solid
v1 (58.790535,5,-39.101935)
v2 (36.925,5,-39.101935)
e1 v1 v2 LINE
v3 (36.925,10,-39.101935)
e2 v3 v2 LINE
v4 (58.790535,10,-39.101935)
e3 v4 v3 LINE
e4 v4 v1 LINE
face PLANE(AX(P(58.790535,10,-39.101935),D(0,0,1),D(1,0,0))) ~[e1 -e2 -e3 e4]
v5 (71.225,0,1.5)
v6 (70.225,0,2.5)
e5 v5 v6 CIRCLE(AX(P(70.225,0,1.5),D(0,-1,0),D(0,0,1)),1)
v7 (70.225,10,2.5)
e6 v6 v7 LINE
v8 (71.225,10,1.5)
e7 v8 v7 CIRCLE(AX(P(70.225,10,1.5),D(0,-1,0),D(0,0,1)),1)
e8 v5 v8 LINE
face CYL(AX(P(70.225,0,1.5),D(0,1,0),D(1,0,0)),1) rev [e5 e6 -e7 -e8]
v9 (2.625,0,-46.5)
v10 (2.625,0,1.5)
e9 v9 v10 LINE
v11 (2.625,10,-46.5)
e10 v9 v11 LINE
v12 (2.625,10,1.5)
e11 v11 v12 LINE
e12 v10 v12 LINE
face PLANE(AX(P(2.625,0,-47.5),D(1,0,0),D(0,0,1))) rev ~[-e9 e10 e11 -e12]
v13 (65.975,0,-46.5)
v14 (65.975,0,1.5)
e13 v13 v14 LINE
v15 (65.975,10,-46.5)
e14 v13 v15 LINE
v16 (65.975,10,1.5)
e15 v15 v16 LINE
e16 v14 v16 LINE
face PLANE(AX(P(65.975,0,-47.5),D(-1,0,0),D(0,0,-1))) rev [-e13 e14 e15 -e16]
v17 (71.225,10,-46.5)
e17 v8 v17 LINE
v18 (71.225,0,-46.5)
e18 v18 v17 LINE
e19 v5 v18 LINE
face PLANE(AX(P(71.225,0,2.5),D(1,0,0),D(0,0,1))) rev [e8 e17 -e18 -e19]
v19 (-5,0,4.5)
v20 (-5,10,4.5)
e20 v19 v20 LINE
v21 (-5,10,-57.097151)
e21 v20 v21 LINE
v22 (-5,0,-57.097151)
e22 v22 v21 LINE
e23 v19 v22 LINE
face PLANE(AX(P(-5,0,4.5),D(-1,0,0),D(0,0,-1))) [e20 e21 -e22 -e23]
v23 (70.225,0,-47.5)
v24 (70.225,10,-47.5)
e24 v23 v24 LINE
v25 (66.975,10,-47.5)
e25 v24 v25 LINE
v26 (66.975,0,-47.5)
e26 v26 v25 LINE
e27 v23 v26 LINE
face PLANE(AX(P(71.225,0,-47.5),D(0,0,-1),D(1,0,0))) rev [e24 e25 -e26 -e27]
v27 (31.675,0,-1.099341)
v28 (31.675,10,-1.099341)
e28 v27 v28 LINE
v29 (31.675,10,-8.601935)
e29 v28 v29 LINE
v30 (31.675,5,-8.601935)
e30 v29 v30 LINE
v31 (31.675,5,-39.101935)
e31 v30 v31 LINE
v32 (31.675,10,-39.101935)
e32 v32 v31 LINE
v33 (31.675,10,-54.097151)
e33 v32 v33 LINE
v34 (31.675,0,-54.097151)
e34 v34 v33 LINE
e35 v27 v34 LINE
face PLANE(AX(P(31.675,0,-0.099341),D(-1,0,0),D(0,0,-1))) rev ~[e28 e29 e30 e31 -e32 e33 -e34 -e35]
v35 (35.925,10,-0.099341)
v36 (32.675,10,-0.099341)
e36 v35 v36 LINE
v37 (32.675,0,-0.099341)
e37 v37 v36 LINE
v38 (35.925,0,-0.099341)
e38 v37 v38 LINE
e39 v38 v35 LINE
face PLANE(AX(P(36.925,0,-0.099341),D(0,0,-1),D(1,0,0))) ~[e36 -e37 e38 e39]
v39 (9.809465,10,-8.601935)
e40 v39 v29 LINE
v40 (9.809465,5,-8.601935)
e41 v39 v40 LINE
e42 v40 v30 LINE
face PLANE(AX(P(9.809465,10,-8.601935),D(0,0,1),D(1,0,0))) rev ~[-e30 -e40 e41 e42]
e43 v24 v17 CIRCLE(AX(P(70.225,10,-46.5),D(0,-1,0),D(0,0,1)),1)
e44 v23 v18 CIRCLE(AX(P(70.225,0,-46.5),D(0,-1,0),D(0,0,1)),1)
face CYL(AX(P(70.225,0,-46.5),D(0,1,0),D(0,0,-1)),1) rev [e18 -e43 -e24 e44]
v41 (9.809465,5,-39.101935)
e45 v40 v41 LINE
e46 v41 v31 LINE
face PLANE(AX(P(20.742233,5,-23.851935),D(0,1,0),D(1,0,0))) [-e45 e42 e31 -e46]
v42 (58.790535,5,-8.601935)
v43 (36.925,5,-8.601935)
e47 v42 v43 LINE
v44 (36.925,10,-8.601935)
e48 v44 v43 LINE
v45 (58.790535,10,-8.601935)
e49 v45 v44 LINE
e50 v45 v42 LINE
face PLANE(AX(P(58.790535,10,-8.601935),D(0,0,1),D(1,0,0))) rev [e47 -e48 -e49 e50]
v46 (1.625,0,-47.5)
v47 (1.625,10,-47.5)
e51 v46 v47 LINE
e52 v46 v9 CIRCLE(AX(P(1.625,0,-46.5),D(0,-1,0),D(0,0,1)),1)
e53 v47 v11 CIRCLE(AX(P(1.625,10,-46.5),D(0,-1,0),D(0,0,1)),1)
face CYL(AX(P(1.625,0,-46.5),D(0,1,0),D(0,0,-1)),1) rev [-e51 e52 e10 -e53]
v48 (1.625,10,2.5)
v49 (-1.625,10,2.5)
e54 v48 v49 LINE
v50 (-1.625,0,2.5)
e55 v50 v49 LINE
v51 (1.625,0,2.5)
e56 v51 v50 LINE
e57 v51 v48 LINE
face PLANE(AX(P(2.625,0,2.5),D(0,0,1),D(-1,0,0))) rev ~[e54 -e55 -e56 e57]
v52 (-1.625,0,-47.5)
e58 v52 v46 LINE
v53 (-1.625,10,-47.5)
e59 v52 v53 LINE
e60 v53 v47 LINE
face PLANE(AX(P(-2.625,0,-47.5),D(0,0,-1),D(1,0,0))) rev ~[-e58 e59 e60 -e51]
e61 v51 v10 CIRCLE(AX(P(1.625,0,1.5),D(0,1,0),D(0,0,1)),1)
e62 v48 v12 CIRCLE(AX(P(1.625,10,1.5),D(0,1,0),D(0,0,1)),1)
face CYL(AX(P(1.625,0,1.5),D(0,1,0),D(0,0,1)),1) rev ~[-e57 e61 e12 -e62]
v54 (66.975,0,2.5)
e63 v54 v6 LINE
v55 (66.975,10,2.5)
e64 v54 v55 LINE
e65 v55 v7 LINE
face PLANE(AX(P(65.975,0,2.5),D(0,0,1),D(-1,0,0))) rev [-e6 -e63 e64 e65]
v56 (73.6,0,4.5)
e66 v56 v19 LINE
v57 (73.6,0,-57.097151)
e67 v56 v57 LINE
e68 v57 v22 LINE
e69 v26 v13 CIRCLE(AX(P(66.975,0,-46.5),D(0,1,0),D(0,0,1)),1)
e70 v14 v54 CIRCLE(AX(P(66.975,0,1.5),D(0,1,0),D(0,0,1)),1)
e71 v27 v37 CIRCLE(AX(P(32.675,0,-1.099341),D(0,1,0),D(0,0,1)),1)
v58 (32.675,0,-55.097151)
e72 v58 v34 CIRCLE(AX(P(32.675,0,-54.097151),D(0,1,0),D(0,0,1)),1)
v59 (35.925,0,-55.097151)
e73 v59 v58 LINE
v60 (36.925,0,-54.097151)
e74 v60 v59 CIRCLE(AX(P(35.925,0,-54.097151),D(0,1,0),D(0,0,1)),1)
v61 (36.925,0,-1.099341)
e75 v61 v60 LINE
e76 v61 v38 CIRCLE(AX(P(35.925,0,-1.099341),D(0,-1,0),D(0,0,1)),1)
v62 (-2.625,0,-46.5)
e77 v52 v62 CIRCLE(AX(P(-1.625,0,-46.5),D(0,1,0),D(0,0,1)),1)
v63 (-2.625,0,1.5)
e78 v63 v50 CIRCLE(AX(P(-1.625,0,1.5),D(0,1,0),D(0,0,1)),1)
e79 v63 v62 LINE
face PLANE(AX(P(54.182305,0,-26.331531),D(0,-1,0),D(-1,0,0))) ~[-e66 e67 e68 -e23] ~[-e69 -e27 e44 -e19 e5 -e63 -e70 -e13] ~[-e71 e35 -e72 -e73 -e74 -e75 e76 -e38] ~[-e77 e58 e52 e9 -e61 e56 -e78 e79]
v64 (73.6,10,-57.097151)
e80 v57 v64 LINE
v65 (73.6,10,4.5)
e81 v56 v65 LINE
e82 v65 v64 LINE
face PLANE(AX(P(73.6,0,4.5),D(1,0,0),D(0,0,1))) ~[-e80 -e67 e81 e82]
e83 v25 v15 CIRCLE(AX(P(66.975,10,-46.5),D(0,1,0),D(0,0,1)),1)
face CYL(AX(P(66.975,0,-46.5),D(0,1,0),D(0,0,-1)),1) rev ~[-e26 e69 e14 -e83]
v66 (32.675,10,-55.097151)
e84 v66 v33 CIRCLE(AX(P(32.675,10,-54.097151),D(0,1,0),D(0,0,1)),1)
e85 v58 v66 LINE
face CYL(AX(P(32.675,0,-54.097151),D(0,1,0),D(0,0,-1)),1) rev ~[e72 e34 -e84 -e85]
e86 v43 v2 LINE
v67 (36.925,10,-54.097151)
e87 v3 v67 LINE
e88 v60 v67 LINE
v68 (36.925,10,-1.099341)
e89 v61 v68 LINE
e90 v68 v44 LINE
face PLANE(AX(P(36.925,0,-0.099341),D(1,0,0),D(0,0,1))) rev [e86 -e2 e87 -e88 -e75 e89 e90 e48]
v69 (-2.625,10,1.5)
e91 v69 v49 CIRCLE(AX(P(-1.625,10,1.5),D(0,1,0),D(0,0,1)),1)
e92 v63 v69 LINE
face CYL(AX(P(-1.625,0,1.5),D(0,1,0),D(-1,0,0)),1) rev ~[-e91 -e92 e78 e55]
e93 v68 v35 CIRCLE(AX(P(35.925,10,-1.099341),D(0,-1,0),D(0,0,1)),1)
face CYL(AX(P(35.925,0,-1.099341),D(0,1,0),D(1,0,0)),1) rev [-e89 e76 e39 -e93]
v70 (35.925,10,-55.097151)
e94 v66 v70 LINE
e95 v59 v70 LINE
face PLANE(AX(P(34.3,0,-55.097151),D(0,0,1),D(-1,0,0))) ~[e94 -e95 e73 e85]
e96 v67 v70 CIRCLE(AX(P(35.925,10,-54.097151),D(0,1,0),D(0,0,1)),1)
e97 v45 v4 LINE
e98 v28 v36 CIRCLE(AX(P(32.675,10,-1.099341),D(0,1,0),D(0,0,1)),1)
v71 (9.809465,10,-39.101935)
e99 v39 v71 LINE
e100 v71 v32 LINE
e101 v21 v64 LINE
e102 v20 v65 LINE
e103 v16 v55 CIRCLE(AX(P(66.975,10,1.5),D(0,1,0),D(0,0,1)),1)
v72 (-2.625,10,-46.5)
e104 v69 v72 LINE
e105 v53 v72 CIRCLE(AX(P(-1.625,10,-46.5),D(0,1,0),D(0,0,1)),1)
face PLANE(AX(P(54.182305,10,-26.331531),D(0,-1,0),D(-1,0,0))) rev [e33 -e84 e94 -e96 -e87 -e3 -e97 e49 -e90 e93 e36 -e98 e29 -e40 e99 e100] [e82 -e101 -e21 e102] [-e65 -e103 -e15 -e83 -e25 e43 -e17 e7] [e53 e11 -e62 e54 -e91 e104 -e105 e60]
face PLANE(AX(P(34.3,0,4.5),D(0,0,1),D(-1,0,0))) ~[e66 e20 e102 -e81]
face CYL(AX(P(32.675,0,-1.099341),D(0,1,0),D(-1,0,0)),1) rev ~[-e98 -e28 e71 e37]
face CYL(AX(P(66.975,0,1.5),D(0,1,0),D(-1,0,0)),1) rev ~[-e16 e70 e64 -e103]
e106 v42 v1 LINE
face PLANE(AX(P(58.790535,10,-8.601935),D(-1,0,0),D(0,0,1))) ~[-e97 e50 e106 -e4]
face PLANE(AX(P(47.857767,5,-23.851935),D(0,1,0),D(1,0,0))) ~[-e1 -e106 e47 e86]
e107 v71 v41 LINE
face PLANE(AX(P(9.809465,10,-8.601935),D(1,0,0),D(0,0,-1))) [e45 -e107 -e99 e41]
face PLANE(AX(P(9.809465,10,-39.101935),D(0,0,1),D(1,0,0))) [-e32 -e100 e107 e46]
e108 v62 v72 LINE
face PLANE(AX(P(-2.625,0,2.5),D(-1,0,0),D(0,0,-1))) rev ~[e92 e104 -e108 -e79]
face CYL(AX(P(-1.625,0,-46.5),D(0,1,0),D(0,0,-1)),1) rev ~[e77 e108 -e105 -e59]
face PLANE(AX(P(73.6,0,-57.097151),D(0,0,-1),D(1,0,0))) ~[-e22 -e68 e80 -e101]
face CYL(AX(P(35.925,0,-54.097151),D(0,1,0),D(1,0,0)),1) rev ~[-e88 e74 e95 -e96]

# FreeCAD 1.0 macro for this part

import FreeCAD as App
import Part
import Sketcher
from FreeCAD import Vector
Q = App.Units.Quantity


def edges_at(feature, points):
    """Names of the edges that pass closest to the given points."""
    edges = feature.Shape.Edges
    near = lambda p: min(range(len(edges)), key=lambda i: edges[i].distToShape(Part.Vertex(*p))[0])
    return sorted({f"Edge{near(p) + 1}" for p in points})


def add_polygon(sketch, points):
    """Adds a closed chain of lines whose ends are joined by coincident constraints."""
    first, n = sketch.GeometryCount, len(points)
    for a, b in zip(points, points[1:] + points[:1]):
        sketch.addGeometry(Part.LineSegment(App.Vector(*a, 0), App.Vector(*b, 0)), False)
    for i in range(n):
        sketch.addConstraint(Sketcher.Constraint("Coincident", first + i, 2, first + (i + 1) % n, 1))

doc = App.newDocument("Part")
body = doc.addObject("PartDesign::Body", "Body")

# Sketch on XZ plane
sketch1 = body.newObject("Sketcher::SketchObject", "Sketch")
sketch1.AttachmentSupport = (doc.getObject("XZ_Plane"), [""])
sketch1.MapMode = "FlatFace"
add_polygon(sketch1, [(34.3, -57.1), (-5, -57.1), (-5, 4.5), (34.3, 4.5), (34.3, -0.1), (31.7, -0.1), (31.7, -55.1), (34.3, -55.1)])  # lines 0-7
add_polygon(sketch1, [(-2.6, -47.5), (2.6, -47.5), (2.6, 2.5), (-2.6, 2.5)])  # lines 8-11
sketch1.addConstraint(Sketcher.Constraint("Horizontal", 0))
sketch1.addConstraint(Sketcher.Constraint("Vertical", 1))
sketch1.addConstraint(Sketcher.Constraint("Horizontal", 2))
sketch1.addConstraint(Sketcher.Constraint("Vertical", 3))
sketch1.addConstraint(Sketcher.Constraint("Horizontal", 4))
sketch1.addConstraint(Sketcher.Constraint("Vertical", 5))
sketch1.addConstraint(Sketcher.Constraint("Horizontal", 6))
sketch1.addConstraint(Sketcher.Constraint("Vertical", 7))
sketch1.addConstraint(Sketcher.Constraint("Horizontal", 8))
sketch1.addConstraint(Sketcher.Constraint("Vertical", 9))
sketch1.addConstraint(Sketcher.Constraint("Horizontal", 10))
sketch1.addConstraint(Sketcher.Constraint("Vertical", 11))
sketch1.addConstraint(Sketcher.Constraint("Vertical", 3, 2, 6, 2))
sketch1.addConstraint(Sketcher.Constraint("DistanceY", 7, 2, 7, 1, Q("2 mm")))
sketch1.addConstraint(Sketcher.Constraint("DistanceY", 9, 1, 9, 2, Q("50 mm")))
sketch1.addConstraint(Sketcher.Constraint("DistanceX", 0, 2, 0, 1, Q("39.3 mm")))
sketch1.addConstraint(Sketcher.Constraint("DistanceX", 0, 2, -1, 1, Q("5 mm")))
sketch1.addConstraint(Sketcher.Constraint("DistanceY", 8, 2, 1, 2, Q("52 mm")))
sketch1.addConstraint(Sketcher.Constraint("DistanceX", 8, 1, 8, 2, Q("5.25 mm")))
sketch1.addConstraint(Sketcher.Constraint("DistanceY", -1, 1, 1, 2, Q("4.5 mm")))
sketch1.addConstraint(Sketcher.Constraint("DistanceX", 10, 2, 4, 2, Q("34.3 mm")))
sketch1.addConstraint(Sketcher.Constraint("DistanceX", 4, 2, 4, 1, Q("2.625 mm")))
sketch1.addConstraint(Sketcher.Constraint("DistanceY", 1, 1, 1, 2, Q("61.597151 mm")))
sketch1.addConstraint(Sketcher.Constraint("DistanceY", 3, 2, 3, 1, Q("4.599341 mm")))
pad1 = body.newObject("PartDesign::Pad", "Pad")
pad1.Profile = sketch1
pad1.Length = 10
pad1.Reversed = True
doc.recompute()

fillet = body.newObject("PartDesign::Fillet", "Fillet")
fillet.Base = (pad1, edges_at(pad1, [
    (31.675, 5, -55.097),
    (31.675, 5, -0.099),
    (-2.625, 5, -47.5),
    (-2.625, 5, 2.5),
    (2.625, 5, 2.5),
    (2.625, 5, -47.5),
]))
fillet.Radius = 1

# Sketch on XZ plane
sketch2 = body.newObject("Sketcher::SketchObject", "Sketch001")
sketch2.AttachmentSupport = (doc.getObject("XZ_Plane"), [""])
sketch2.MapMode = "FlatFace"
sketch2.AttachmentOffset = App.Placement(Vector(0, 0, -10), App.Rotation())
add_polygon(sketch2, [(10, -39), (10, -9), (32, -9), (32, -39)])  # lines 0-3
sketch2.addConstraint(Sketcher.Constraint("Vertical", 0))
sketch2.addConstraint(Sketcher.Constraint("Horizontal", 1))
sketch2.addConstraint(Sketcher.Constraint("Vertical", 2))
sketch2.addConstraint(Sketcher.Constraint("Horizontal", 3))
sketch2.addConstraint(Sketcher.Constraint("DistanceY", 0, 1, 0, 2, Q("30.5 mm")))
sketch2.addConstraint(Sketcher.Constraint("DistanceX", -1, 1, 1, 2, Q("31.675 mm")))
sketch2.addConstraint(Sketcher.Constraint("DistanceX", 1, 1, 1, 2, Q("21.865535 mm")))
sketch2.addConstraint(Sketcher.Constraint("DistanceY", 0, 2, -1, 1, Q("8.601935 mm")))
pocket1 = body.newObject("PartDesign::Pocket", "Pocket")
pocket1.Profile = sketch2
pocket1.Length = 5
pocket1.Reversed = True
doc.recompute()

datumplane = body.newObject("PartDesign::Plane", "DatumPlane")
datumplane.AttachmentSupport = (doc.getObject("YZ_Plane"), [""])
datumplane.MapMode = "FlatFace"
datumplane.AttachmentOffset = App.Placement(Vector(0, 0, 34.3), App.Rotation())
mirrored = body.newObject("PartDesign::Mirrored", "Mirrored")
mirrored.Originals = [pad1, pocket1]
mirrored.MirrorPlane = (datumplane, [""])
body.Tip = mirrored
doc.recompute()

fillet2 = body.newObject("PartDesign::Fillet", "Fillet001")
fillet2.Base = (mirrored, edges_at(mirrored, [
    (36.925, 5, -55.097),
    (36.925, 5, -0.099),
    (71.225, 5, -47.5),
    (71.225, 5, 2.5),
    (65.975, 5, 2.5),
    (65.975, 5, -47.5),
]))
fillet2.Radius = 1

doc.recompute()
